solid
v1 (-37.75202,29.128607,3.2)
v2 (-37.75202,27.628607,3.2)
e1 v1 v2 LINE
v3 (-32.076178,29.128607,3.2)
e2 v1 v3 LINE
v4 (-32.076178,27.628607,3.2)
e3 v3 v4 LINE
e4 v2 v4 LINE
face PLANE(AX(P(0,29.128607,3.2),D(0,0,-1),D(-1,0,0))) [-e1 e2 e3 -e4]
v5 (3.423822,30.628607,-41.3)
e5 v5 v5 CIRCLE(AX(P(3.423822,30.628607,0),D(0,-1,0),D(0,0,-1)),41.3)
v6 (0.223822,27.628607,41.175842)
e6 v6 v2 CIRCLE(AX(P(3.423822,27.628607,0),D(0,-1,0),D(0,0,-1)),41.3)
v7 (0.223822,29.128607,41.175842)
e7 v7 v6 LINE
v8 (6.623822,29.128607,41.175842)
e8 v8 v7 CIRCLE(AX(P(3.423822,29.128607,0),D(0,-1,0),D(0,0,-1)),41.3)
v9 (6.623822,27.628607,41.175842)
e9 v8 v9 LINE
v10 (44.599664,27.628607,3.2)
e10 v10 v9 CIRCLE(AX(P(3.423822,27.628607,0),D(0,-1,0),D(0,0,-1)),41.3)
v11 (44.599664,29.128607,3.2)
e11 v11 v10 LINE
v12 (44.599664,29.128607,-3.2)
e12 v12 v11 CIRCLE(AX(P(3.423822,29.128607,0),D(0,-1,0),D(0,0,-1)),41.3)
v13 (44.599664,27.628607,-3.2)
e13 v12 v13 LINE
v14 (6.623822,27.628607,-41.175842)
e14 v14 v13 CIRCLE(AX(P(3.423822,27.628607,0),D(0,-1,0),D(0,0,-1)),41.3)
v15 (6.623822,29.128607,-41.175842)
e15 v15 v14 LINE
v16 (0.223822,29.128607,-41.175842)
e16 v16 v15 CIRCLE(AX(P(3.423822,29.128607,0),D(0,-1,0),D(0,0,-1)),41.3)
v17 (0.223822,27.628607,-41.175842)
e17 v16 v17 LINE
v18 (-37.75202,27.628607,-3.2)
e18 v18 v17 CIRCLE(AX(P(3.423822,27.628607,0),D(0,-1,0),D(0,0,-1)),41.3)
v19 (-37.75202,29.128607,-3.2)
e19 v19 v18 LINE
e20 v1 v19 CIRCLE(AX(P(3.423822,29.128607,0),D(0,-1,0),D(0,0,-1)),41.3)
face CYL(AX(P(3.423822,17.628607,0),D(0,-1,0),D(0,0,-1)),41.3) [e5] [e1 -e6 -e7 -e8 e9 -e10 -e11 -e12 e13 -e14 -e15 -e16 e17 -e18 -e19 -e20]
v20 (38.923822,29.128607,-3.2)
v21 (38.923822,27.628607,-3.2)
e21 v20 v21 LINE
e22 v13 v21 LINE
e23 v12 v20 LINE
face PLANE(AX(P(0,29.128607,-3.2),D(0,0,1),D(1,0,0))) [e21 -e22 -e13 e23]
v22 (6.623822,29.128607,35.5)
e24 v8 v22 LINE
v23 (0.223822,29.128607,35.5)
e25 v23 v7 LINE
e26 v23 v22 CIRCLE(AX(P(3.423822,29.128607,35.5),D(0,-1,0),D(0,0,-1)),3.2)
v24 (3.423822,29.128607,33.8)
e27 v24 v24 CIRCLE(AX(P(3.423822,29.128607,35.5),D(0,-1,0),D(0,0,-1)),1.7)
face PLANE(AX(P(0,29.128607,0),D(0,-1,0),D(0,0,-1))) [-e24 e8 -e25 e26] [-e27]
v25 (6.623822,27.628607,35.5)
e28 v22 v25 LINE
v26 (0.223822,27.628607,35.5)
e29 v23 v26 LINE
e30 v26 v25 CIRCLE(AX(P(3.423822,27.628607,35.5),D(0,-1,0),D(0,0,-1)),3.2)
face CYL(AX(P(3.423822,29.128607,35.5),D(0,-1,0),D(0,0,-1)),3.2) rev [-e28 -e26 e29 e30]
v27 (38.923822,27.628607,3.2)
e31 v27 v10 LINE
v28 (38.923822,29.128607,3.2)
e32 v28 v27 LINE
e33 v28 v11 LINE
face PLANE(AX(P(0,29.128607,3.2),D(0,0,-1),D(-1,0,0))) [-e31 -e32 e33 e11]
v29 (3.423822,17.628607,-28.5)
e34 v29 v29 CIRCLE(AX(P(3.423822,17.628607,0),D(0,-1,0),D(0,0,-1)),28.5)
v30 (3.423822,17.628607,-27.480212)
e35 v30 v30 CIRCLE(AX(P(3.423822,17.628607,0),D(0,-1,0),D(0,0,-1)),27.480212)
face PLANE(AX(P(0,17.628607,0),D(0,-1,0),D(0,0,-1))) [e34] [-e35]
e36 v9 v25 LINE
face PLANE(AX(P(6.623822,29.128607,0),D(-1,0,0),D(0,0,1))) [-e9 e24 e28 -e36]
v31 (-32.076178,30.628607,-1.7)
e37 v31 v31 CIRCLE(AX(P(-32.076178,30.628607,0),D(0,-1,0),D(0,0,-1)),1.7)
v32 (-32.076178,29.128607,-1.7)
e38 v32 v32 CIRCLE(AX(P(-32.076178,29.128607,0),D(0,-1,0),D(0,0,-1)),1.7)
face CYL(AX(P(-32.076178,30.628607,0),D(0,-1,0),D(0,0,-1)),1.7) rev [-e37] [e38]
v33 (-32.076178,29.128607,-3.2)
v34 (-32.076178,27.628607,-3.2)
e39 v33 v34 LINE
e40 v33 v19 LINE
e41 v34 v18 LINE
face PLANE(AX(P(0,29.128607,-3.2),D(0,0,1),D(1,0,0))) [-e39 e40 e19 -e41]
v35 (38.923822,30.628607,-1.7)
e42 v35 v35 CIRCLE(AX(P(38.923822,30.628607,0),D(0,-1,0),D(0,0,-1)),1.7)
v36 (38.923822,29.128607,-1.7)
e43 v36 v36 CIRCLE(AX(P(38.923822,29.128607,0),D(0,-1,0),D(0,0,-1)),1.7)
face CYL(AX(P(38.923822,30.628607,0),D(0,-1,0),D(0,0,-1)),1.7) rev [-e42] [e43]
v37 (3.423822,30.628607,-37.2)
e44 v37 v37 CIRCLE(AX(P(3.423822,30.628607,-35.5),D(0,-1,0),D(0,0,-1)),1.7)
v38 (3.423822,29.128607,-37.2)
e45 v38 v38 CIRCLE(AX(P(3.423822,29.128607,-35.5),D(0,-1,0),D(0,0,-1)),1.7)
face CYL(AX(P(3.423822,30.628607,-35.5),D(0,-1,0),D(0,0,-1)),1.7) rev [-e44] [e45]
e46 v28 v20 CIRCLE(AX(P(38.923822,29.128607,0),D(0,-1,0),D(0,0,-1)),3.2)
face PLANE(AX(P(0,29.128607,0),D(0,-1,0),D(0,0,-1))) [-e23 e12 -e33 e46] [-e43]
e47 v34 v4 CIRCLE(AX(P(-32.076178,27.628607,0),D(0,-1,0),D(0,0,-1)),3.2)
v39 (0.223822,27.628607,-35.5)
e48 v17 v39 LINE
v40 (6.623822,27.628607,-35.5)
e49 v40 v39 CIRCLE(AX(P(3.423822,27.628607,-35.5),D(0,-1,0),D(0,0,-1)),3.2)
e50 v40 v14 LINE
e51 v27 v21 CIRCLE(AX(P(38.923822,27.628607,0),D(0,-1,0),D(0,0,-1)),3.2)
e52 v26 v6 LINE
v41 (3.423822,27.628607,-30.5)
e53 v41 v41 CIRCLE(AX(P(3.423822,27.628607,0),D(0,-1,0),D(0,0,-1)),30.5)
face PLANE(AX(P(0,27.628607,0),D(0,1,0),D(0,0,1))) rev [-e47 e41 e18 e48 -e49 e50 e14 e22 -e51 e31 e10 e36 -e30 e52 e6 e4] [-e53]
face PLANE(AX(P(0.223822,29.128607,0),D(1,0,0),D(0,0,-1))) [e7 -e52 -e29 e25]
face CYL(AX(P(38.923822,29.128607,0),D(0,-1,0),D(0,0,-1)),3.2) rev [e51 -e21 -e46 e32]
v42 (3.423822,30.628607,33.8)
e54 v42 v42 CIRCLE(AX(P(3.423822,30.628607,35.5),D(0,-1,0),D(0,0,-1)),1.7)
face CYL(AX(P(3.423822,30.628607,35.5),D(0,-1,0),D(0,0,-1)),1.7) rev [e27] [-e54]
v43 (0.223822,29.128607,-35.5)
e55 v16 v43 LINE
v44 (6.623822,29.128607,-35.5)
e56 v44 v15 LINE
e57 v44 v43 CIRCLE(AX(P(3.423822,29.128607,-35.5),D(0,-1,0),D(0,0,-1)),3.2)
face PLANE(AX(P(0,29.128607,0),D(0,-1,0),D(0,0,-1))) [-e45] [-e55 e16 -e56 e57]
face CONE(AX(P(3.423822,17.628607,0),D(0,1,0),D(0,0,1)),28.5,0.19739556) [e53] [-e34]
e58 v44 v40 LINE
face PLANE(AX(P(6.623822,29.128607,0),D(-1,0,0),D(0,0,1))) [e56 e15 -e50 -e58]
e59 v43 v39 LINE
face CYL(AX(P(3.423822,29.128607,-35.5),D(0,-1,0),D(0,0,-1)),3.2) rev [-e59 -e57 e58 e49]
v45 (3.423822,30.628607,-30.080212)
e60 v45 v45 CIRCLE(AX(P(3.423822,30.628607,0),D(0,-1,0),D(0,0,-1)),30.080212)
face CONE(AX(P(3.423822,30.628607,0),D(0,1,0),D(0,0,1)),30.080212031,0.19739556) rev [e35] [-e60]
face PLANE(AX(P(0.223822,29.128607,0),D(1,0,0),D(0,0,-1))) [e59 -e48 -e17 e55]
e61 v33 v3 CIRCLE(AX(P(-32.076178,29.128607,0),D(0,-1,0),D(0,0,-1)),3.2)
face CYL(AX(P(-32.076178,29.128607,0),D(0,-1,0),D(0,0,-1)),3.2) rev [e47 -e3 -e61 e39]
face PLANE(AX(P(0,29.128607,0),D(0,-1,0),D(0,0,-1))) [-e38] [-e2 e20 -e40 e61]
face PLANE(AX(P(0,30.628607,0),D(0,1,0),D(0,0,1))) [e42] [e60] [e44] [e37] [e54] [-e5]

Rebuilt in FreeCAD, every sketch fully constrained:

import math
import FreeCAD as App
import Part
import Sketcher
Q = App.Units.Quantity


def add_polygon(sketch, points):
    """Adds a closed chain of lines whose ends are joined by coincident constraints."""
    first, n = sketch.GeometryCount, len(points)
    for a, b in zip(points, points[1:] + points[:1]):
        sketch.addGeometry(Part.LineSegment(App.Vector(*a, 0), App.Vector(*b, 0)), False)
    for i in range(n):
        sketch.addConstraint(Sketcher.Constraint("Coincident", first + i, 2, first + (i + 1) % n, 1))

doc = App.newDocument("Part")
params = doc.addObject("Spreadsheet::Sheet", "Params")
for row, (alias, value) in enumerate([
    ("sketch1_height", "3 mm"),
    ("sketch1_height2", "13 mm"),
    ("sketch1_width", "10.8 mm"),
    ("revolution_angle", "360 deg"),
    ("sketch2_diameter", "3.4 mm"),
    ("sketch2_radius", "41.3 mm"),
    ("sketch2_radius2", "3.2 mm"),
    ("pocket1_length", "1.5 mm"),
    ("sketch3_diameter", "3.4 mm"),
], start=1):
    params.set(f"A{row}", alias)
    params.set(f"B{row}", "=" + value)
    params.setAlias(f"B{row}", alias)

body = doc.addObject("PartDesign::Body", "Body")

sketch1 = body.newObject("Sketcher::SketchObject", "Sketch")
sketch1.AttachmentSupport = (doc.getObject("XY_Plane"), [""])
sketch1.MapMode = "FlatFace"
add_polygon(sketch1, [(-25.1, 17.6), (-24.1, 17.6), (-26.7, 30.6), (-37.9, 30.6), (-37.9, 27.6), (-27.1, 27.6)])
sketch1.addGeometry(Part.LineSegment(App.Vector(3.4, 17.6, 0), App.Vector(3.4, 30.6, 0)), True)
sketch1.addConstraint(Sketcher.Constraint("Horizontal", 0))
sketch1.addConstraint(Sketcher.Constraint("Horizontal", 2))
sketch1.addConstraint(Sketcher.Constraint("Vertical", 3))
sketch1.addConstraint(Sketcher.Constraint("Horizontal", 4))
sketch1.addConstraint(Sketcher.Constraint("Vertical", 6))
sketch1.addConstraint(Sketcher.Constraint("Parallel", 1, 5))
sketch1.addConstraint(Sketcher.Constraint("Horizontal", 5, 2, 6, 1))
sketch1.addConstraint(Sketcher.Constraint("Horizontal", 2, 2, 6, 2))
sketch1.addConstraint(Sketcher.Constraint("DistanceY", 3, 2, 3, 1, Q("3 mm")))
sketch1.addConstraint(Sketcher.Constraint("DistanceY", 6, 1, 6, 2, Q("13 mm")))
sketch1.addConstraint(Sketcher.Constraint("DistanceX", 4, 1, 4, 2, Q("10.8 mm")))
sketch1.addConstraint(Sketcher.Constraint("DistanceX", 4, 2, 5, 2, Q("2 mm")))
sketch1.addConstraint(Sketcher.Constraint("DistanceX", 5, 2, 6, 1, Q("28.5 mm")))
sketch1.addConstraint(Sketcher.Constraint("DistanceX", 0, 1, 0, 2, Q("1.019788 mm")))
sketch1.addConstraint(Sketcher.Constraint("DistanceX", 0, 2, -1, 1, Q("24.05639 mm")))
sketch1.addConstraint(Sketcher.Constraint("DistanceY", -1, 1, 0, 2, Q("17.628607 mm")))
sketch1.setExpression("Constraints[14]", "Params.sketch1_height")
sketch1.setExpression("Constraints[15]", "Params.sketch1_height2")
sketch1.setExpression("Constraints[16]", "Params.sketch1_width")
revolution = body.newObject("PartDesign::Revolution", "Revolution")
revolution.Profile = sketch1
revolution.ReferenceAxis = (sketch1, ["Axis0"])
revolution.setExpression("Angle", "Params.revolution_angle")

sketch2 = body.newObject("Sketcher::SketchObject", "Sketch001")
sketch2.AttachmentSupport = (doc.getObject("XZ_Plane"), [""])
sketch2.MapMode = "FlatFace"
sketch2.AttachmentOffset = App.Placement(App.Vector(0, 0, -29.128607), App.Rotation())
sketch2.addGeometry(Part.LineSegment(App.Vector(6.6, 35.5, 0), App.Vector(6.6, 41.2, 0)), False)
sketch2.addGeometry(Part.ArcOfCircle(Part.Circle(App.Vector(3.4, 0, 0), App.Vector(0, 0, 1), 41.3), math.radians(85.56), math.radians(94.44)), False)
sketch2.addGeometry(Part.LineSegment(App.Vector(0.2, 41.2, 0), App.Vector(0.2, 35.5, 0)), False)
sketch2.addGeometry(Part.ArcOfCircle(Part.Circle(App.Vector(3.4, 35.5, 0), App.Vector(0, 0, 1), 3.2), math.radians(180), math.radians(360)), False)
sketch2.addGeometry(Part.Circle(App.Vector(3.4, 35.5, 0), App.Vector(0, 0, 1), 1.7), False)
sketch2.addGeometry(Part.LineSegment(App.Vector(38.9, -3.2, 0), App.Vector(44.6, -3.2, 0)), False)
sketch2.addGeometry(Part.ArcOfCircle(Part.Circle(App.Vector(3.4, 0, 0), App.Vector(0, 0, 1), 41.3), math.radians(-4.44), math.radians(0)), False)
sketch2.addGeometry(Part.ArcOfCircle(Part.Circle(App.Vector(3.4, 0, 0), App.Vector(0, 0, 1), 41.3), math.radians(0), math.radians(4.44)), False)
sketch2.addGeometry(Part.LineSegment(App.Vector(44.6, 3.2, 0), App.Vector(38.9, 3.2, 0)), False)
sketch2.addGeometry(Part.ArcOfCircle(Part.Circle(App.Vector(38.9, 0, 0), App.Vector(0, 0, 1), 3.2), math.radians(90), math.radians(270)), False)
sketch2.addGeometry(Part.Circle(App.Vector(38.9, 0, 0), App.Vector(0, 0, 1), 1.7), False)
sketch2.addGeometry(Part.ArcOfCircle(Part.Circle(App.Vector(3.4, 0, 0), App.Vector(0, 0, 1), 41.3), math.radians(175.56), math.radians(184.44)), False)
sketch2.addGeometry(Part.LineSegment(App.Vector(-37.8, -3.2, 0), App.Vector(-32.1, -3.2, 0)), False)
sketch2.addGeometry(Part.ArcOfCircle(Part.Circle(App.Vector(-32.1, 0, 0), App.Vector(0, 0, 1), 3.2), math.radians(-90), math.radians(90)), False)
sketch2.addGeometry(Part.LineSegment(App.Vector(-32.1, 3.2, 0), App.Vector(-37.8, 3.2, 0)), False)
sketch2.addGeometry(Part.Circle(App.Vector(-32.1, 0, 0), App.Vector(0, 0, 1), 1.7), False)
sketch2.addGeometry(Part.ArcOfCircle(Part.Circle(App.Vector(3.4, 0, 0), App.Vector(0, 0, 1), 41.3), math.radians(-94.44), math.radians(-85.56)), False)
sketch2.addGeometry(Part.LineSegment(App.Vector(6.6, -41.2, 0), App.Vector(6.6, -35.5, 0)), False)
sketch2.addGeometry(Part.ArcOfCircle(Part.Circle(App.Vector(3.4, -35.5, 0), App.Vector(0, 0, 1), 3.2), math.radians(0), math.radians(180)), False)
sketch2.addGeometry(Part.LineSegment(App.Vector(0.2, -35.5, 0), App.Vector(0.2, -41.2, 0)), False)
sketch2.addGeometry(Part.Circle(App.Vector(3.4, -35.5, 0), App.Vector(0, 0, 1), 1.7), False)
sketch2.addConstraint(Sketcher.Constraint("Coincident", 0, 2, 1, 1))
sketch2.addConstraint(Sketcher.Constraint("Coincident", 1, 2, 2, 1))
sketch2.addConstraint(Sketcher.Constraint("Tangent", 2, 2, 3, 1))
sketch2.addConstraint(Sketcher.Constraint("Tangent", 3, 2, 0, 1))
sketch2.addConstraint(Sketcher.Constraint("Coincident", 5, 2, 6, 1))
sketch2.addConstraint(Sketcher.Constraint("Tangent", 6, 2, 7, 1))
sketch2.addConstraint(Sketcher.Constraint("Coincident", 7, 2, 8, 1))
sketch2.addConstraint(Sketcher.Constraint("Tangent", 8, 2, 9, 1))
sketch2.addConstraint(Sketcher.Constraint("Tangent", 9, 2, 5, 1))
sketch2.addConstraint(Sketcher.Constraint("Coincident", 11, 2, 12, 1))
sketch2.addConstraint(Sketcher.Constraint("Tangent", 12, 2, 13, 1))
sketch2.addConstraint(Sketcher.Constraint("Tangent", 13, 2, 14, 1))
sketch2.addConstraint(Sketcher.Constraint("Coincident", 14, 2, 11, 1))
sketch2.addConstraint(Sketcher.Constraint("Coincident", 16, 2, 17, 1))
sketch2.addConstraint(Sketcher.Constraint("Tangent", 17, 2, 18, 1))
sketch2.addConstraint(Sketcher.Constraint("Tangent", 18, 2, 19, 1))
sketch2.addConstraint(Sketcher.Constraint("Coincident", 19, 2, 16, 1))
sketch2.addConstraint(Sketcher.Constraint("Vertical", 0))
sketch2.addConstraint(Sketcher.Constraint("Vertical", 2))
sketch2.addConstraint(Sketcher.Constraint("Horizontal", 5))
sketch2.addConstraint(Sketcher.Constraint("Horizontal", 8))
sketch2.addConstraint(Sketcher.Constraint("Horizontal", 12))
sketch2.addConstraint(Sketcher.Constraint("Horizontal", 14))
sketch2.addConstraint(Sketcher.Constraint("Vertical", 17))
sketch2.addConstraint(Sketcher.Constraint("Vertical", 19))
sketch2.addConstraint(Sketcher.Constraint("Coincident", 4, 3, 3, 3))
sketch2.addConstraint(Sketcher.Constraint("Coincident", 6, 3, 1, 3))
sketch2.addConstraint(Sketcher.Constraint("Coincident", 10, 3, 9, 3))
sketch2.addConstraint(Sketcher.Constraint("Coincident", 11, 3, 1, 3))
sketch2.addConstraint(Sketcher.Constraint("Coincident", 15, 3, 13, 3))
sketch2.addConstraint(Sketcher.Constraint("Coincident", 16, 3, 1, 3))
sketch2.addConstraint(Sketcher.Constraint("Coincident", 20, 3, 18, 3))
sketch2.addConstraint(Sketcher.Constraint("Equal", 1, 6))
sketch2.addConstraint(Sketcher.Constraint("Equal", 6, 7))
sketch2.addConstraint(Sketcher.Constraint("Equal", 3, 9))
sketch2.addConstraint(Sketcher.Constraint("Equal", 4, 10))
sketch2.addConstraint(Sketcher.Constraint("Equal", 7, 11))
sketch2.addConstraint(Sketcher.Constraint("Equal", 9, 13))
sketch2.addConstraint(Sketcher.Constraint("Equal", 10, 15))
sketch2.addConstraint(Sketcher.Constraint("Equal", 11, 16))
sketch2.addConstraint(Sketcher.Constraint("Equal", 13, 18))
sketch2.addConstraint(Sketcher.Constraint("Equal", 15, 20))
sketch2.addConstraint(Sketcher.Constraint("Symmetric", 3, 3, 18, 3, -1))
sketch2.addConstraint(Sketcher.Constraint("Symmetric", 5, 2, 7, 2, -1))
sketch2.addConstraint(Sketcher.Constraint("PointOnObject", 13, 3, -1))
sketch2.addConstraint(Sketcher.Constraint("PointOnObject", 6, 2, -1))
sketch2.addConstraint(Sketcher.Constraint("Horizontal", 0, 2, 1, 2))
sketch2.addConstraint(Sketcher.Constraint("Equal", 8, 12))
sketch2.addConstraint(Sketcher.Constraint("Equal", 14, 0))
sketch2.addConstraint(Sketcher.Constraint("Diameter", 4, Q("3.4 mm")))
sketch2.addConstraint(Sketcher.Constraint("Radius", 1, Q("41.3 mm")))
sketch2.addConstraint(Sketcher.Constraint("Radius", 3, Q("3.2 mm")))
sketch2.addConstraint(Sketcher.Constraint("DistanceY", -1, 1, 3, 3, Q("35.5 mm")))
sketch2.addConstraint(Sketcher.Constraint("DistanceX", -1, 1, 1, 3, Q("3.423822 mm")))
sketch2.setExpression("Constraints[49]", "Params.sketch2_diameter")
sketch2.setExpression("Constraints[50]", "Params.sketch2_radius")
sketch2.setExpression("Constraints[51]", "Params.sketch2_radius2")
pocket1 = body.newObject("PartDesign::Pocket", "Pocket")
pocket1.Profile = sketch2
pocket1.setExpression("Length", "Params.pocket1_length")
pocket1.Reversed = True

sketch3 = body.newObject("Sketcher::SketchObject", "Sketch002")
sketch3.AttachmentSupport = (doc.getObject("XZ_Plane"), [""])
sketch3.MapMode = "FlatFace"
sketch3.AttachmentOffset = App.Placement(App.Vector(0, 0, -27.628607), App.Rotation())
sketch3.addGeometry(Part.Circle(App.Vector(3.4, 35.5, 0), App.Vector(0, 0, 1), 1.7), False)
sketch3.addGeometry(Part.Circle(App.Vector(3.4, -35.5, 0), App.Vector(0, 0, 1), 1.7), False)
sketch3.addGeometry(Part.Circle(App.Vector(-32.1, 0, 0), App.Vector(0, 0, 1), 1.7), False)
sketch3.addGeometry(Part.Circle(App.Vector(38.9, 0, 0), App.Vector(0, 0, 1), 1.7), False)
sketch3.addConstraint(Sketcher.Constraint("Equal", 0, 1))
sketch3.addConstraint(Sketcher.Constraint("Equal", 1, 2))
sketch3.addConstraint(Sketcher.Constraint("Equal", 2, 3))
sketch3.addConstraint(Sketcher.Constraint("Symmetric", 0, 3, 1, 3, -1))
sketch3.addConstraint(Sketcher.Constraint("PointOnObject", 2, 3, -1))
sketch3.addConstraint(Sketcher.Constraint("PointOnObject", 3, 3, -1))
sketch3.addConstraint(Sketcher.Constraint("Diameter", 0, Q("3.4 mm")))
sketch3.addConstraint(Sketcher.Constraint("DistanceY", 1, 3, 0, 3, Q("71 mm")))
sketch3.addConstraint(Sketcher.Constraint("DistanceX", 2, 3, 3, 3, Q("71 mm")))
sketch3.addConstraint(Sketcher.Constraint("DistanceX", 2, 3, 0, 3, Q("35.5 mm")))
sketch3.addConstraint(Sketcher.Constraint("DistanceX", -1, 1, 0, 3, Q("3.423822 mm")))
sketch3.setExpression("Constraints[6]", "Params.sketch3_diameter")
pocket2 = body.newObject("PartDesign::Pocket", "Pocket001")
pocket2.Profile = sketch3
pocket2.Type = "ThroughAll"

doc.recompute()
